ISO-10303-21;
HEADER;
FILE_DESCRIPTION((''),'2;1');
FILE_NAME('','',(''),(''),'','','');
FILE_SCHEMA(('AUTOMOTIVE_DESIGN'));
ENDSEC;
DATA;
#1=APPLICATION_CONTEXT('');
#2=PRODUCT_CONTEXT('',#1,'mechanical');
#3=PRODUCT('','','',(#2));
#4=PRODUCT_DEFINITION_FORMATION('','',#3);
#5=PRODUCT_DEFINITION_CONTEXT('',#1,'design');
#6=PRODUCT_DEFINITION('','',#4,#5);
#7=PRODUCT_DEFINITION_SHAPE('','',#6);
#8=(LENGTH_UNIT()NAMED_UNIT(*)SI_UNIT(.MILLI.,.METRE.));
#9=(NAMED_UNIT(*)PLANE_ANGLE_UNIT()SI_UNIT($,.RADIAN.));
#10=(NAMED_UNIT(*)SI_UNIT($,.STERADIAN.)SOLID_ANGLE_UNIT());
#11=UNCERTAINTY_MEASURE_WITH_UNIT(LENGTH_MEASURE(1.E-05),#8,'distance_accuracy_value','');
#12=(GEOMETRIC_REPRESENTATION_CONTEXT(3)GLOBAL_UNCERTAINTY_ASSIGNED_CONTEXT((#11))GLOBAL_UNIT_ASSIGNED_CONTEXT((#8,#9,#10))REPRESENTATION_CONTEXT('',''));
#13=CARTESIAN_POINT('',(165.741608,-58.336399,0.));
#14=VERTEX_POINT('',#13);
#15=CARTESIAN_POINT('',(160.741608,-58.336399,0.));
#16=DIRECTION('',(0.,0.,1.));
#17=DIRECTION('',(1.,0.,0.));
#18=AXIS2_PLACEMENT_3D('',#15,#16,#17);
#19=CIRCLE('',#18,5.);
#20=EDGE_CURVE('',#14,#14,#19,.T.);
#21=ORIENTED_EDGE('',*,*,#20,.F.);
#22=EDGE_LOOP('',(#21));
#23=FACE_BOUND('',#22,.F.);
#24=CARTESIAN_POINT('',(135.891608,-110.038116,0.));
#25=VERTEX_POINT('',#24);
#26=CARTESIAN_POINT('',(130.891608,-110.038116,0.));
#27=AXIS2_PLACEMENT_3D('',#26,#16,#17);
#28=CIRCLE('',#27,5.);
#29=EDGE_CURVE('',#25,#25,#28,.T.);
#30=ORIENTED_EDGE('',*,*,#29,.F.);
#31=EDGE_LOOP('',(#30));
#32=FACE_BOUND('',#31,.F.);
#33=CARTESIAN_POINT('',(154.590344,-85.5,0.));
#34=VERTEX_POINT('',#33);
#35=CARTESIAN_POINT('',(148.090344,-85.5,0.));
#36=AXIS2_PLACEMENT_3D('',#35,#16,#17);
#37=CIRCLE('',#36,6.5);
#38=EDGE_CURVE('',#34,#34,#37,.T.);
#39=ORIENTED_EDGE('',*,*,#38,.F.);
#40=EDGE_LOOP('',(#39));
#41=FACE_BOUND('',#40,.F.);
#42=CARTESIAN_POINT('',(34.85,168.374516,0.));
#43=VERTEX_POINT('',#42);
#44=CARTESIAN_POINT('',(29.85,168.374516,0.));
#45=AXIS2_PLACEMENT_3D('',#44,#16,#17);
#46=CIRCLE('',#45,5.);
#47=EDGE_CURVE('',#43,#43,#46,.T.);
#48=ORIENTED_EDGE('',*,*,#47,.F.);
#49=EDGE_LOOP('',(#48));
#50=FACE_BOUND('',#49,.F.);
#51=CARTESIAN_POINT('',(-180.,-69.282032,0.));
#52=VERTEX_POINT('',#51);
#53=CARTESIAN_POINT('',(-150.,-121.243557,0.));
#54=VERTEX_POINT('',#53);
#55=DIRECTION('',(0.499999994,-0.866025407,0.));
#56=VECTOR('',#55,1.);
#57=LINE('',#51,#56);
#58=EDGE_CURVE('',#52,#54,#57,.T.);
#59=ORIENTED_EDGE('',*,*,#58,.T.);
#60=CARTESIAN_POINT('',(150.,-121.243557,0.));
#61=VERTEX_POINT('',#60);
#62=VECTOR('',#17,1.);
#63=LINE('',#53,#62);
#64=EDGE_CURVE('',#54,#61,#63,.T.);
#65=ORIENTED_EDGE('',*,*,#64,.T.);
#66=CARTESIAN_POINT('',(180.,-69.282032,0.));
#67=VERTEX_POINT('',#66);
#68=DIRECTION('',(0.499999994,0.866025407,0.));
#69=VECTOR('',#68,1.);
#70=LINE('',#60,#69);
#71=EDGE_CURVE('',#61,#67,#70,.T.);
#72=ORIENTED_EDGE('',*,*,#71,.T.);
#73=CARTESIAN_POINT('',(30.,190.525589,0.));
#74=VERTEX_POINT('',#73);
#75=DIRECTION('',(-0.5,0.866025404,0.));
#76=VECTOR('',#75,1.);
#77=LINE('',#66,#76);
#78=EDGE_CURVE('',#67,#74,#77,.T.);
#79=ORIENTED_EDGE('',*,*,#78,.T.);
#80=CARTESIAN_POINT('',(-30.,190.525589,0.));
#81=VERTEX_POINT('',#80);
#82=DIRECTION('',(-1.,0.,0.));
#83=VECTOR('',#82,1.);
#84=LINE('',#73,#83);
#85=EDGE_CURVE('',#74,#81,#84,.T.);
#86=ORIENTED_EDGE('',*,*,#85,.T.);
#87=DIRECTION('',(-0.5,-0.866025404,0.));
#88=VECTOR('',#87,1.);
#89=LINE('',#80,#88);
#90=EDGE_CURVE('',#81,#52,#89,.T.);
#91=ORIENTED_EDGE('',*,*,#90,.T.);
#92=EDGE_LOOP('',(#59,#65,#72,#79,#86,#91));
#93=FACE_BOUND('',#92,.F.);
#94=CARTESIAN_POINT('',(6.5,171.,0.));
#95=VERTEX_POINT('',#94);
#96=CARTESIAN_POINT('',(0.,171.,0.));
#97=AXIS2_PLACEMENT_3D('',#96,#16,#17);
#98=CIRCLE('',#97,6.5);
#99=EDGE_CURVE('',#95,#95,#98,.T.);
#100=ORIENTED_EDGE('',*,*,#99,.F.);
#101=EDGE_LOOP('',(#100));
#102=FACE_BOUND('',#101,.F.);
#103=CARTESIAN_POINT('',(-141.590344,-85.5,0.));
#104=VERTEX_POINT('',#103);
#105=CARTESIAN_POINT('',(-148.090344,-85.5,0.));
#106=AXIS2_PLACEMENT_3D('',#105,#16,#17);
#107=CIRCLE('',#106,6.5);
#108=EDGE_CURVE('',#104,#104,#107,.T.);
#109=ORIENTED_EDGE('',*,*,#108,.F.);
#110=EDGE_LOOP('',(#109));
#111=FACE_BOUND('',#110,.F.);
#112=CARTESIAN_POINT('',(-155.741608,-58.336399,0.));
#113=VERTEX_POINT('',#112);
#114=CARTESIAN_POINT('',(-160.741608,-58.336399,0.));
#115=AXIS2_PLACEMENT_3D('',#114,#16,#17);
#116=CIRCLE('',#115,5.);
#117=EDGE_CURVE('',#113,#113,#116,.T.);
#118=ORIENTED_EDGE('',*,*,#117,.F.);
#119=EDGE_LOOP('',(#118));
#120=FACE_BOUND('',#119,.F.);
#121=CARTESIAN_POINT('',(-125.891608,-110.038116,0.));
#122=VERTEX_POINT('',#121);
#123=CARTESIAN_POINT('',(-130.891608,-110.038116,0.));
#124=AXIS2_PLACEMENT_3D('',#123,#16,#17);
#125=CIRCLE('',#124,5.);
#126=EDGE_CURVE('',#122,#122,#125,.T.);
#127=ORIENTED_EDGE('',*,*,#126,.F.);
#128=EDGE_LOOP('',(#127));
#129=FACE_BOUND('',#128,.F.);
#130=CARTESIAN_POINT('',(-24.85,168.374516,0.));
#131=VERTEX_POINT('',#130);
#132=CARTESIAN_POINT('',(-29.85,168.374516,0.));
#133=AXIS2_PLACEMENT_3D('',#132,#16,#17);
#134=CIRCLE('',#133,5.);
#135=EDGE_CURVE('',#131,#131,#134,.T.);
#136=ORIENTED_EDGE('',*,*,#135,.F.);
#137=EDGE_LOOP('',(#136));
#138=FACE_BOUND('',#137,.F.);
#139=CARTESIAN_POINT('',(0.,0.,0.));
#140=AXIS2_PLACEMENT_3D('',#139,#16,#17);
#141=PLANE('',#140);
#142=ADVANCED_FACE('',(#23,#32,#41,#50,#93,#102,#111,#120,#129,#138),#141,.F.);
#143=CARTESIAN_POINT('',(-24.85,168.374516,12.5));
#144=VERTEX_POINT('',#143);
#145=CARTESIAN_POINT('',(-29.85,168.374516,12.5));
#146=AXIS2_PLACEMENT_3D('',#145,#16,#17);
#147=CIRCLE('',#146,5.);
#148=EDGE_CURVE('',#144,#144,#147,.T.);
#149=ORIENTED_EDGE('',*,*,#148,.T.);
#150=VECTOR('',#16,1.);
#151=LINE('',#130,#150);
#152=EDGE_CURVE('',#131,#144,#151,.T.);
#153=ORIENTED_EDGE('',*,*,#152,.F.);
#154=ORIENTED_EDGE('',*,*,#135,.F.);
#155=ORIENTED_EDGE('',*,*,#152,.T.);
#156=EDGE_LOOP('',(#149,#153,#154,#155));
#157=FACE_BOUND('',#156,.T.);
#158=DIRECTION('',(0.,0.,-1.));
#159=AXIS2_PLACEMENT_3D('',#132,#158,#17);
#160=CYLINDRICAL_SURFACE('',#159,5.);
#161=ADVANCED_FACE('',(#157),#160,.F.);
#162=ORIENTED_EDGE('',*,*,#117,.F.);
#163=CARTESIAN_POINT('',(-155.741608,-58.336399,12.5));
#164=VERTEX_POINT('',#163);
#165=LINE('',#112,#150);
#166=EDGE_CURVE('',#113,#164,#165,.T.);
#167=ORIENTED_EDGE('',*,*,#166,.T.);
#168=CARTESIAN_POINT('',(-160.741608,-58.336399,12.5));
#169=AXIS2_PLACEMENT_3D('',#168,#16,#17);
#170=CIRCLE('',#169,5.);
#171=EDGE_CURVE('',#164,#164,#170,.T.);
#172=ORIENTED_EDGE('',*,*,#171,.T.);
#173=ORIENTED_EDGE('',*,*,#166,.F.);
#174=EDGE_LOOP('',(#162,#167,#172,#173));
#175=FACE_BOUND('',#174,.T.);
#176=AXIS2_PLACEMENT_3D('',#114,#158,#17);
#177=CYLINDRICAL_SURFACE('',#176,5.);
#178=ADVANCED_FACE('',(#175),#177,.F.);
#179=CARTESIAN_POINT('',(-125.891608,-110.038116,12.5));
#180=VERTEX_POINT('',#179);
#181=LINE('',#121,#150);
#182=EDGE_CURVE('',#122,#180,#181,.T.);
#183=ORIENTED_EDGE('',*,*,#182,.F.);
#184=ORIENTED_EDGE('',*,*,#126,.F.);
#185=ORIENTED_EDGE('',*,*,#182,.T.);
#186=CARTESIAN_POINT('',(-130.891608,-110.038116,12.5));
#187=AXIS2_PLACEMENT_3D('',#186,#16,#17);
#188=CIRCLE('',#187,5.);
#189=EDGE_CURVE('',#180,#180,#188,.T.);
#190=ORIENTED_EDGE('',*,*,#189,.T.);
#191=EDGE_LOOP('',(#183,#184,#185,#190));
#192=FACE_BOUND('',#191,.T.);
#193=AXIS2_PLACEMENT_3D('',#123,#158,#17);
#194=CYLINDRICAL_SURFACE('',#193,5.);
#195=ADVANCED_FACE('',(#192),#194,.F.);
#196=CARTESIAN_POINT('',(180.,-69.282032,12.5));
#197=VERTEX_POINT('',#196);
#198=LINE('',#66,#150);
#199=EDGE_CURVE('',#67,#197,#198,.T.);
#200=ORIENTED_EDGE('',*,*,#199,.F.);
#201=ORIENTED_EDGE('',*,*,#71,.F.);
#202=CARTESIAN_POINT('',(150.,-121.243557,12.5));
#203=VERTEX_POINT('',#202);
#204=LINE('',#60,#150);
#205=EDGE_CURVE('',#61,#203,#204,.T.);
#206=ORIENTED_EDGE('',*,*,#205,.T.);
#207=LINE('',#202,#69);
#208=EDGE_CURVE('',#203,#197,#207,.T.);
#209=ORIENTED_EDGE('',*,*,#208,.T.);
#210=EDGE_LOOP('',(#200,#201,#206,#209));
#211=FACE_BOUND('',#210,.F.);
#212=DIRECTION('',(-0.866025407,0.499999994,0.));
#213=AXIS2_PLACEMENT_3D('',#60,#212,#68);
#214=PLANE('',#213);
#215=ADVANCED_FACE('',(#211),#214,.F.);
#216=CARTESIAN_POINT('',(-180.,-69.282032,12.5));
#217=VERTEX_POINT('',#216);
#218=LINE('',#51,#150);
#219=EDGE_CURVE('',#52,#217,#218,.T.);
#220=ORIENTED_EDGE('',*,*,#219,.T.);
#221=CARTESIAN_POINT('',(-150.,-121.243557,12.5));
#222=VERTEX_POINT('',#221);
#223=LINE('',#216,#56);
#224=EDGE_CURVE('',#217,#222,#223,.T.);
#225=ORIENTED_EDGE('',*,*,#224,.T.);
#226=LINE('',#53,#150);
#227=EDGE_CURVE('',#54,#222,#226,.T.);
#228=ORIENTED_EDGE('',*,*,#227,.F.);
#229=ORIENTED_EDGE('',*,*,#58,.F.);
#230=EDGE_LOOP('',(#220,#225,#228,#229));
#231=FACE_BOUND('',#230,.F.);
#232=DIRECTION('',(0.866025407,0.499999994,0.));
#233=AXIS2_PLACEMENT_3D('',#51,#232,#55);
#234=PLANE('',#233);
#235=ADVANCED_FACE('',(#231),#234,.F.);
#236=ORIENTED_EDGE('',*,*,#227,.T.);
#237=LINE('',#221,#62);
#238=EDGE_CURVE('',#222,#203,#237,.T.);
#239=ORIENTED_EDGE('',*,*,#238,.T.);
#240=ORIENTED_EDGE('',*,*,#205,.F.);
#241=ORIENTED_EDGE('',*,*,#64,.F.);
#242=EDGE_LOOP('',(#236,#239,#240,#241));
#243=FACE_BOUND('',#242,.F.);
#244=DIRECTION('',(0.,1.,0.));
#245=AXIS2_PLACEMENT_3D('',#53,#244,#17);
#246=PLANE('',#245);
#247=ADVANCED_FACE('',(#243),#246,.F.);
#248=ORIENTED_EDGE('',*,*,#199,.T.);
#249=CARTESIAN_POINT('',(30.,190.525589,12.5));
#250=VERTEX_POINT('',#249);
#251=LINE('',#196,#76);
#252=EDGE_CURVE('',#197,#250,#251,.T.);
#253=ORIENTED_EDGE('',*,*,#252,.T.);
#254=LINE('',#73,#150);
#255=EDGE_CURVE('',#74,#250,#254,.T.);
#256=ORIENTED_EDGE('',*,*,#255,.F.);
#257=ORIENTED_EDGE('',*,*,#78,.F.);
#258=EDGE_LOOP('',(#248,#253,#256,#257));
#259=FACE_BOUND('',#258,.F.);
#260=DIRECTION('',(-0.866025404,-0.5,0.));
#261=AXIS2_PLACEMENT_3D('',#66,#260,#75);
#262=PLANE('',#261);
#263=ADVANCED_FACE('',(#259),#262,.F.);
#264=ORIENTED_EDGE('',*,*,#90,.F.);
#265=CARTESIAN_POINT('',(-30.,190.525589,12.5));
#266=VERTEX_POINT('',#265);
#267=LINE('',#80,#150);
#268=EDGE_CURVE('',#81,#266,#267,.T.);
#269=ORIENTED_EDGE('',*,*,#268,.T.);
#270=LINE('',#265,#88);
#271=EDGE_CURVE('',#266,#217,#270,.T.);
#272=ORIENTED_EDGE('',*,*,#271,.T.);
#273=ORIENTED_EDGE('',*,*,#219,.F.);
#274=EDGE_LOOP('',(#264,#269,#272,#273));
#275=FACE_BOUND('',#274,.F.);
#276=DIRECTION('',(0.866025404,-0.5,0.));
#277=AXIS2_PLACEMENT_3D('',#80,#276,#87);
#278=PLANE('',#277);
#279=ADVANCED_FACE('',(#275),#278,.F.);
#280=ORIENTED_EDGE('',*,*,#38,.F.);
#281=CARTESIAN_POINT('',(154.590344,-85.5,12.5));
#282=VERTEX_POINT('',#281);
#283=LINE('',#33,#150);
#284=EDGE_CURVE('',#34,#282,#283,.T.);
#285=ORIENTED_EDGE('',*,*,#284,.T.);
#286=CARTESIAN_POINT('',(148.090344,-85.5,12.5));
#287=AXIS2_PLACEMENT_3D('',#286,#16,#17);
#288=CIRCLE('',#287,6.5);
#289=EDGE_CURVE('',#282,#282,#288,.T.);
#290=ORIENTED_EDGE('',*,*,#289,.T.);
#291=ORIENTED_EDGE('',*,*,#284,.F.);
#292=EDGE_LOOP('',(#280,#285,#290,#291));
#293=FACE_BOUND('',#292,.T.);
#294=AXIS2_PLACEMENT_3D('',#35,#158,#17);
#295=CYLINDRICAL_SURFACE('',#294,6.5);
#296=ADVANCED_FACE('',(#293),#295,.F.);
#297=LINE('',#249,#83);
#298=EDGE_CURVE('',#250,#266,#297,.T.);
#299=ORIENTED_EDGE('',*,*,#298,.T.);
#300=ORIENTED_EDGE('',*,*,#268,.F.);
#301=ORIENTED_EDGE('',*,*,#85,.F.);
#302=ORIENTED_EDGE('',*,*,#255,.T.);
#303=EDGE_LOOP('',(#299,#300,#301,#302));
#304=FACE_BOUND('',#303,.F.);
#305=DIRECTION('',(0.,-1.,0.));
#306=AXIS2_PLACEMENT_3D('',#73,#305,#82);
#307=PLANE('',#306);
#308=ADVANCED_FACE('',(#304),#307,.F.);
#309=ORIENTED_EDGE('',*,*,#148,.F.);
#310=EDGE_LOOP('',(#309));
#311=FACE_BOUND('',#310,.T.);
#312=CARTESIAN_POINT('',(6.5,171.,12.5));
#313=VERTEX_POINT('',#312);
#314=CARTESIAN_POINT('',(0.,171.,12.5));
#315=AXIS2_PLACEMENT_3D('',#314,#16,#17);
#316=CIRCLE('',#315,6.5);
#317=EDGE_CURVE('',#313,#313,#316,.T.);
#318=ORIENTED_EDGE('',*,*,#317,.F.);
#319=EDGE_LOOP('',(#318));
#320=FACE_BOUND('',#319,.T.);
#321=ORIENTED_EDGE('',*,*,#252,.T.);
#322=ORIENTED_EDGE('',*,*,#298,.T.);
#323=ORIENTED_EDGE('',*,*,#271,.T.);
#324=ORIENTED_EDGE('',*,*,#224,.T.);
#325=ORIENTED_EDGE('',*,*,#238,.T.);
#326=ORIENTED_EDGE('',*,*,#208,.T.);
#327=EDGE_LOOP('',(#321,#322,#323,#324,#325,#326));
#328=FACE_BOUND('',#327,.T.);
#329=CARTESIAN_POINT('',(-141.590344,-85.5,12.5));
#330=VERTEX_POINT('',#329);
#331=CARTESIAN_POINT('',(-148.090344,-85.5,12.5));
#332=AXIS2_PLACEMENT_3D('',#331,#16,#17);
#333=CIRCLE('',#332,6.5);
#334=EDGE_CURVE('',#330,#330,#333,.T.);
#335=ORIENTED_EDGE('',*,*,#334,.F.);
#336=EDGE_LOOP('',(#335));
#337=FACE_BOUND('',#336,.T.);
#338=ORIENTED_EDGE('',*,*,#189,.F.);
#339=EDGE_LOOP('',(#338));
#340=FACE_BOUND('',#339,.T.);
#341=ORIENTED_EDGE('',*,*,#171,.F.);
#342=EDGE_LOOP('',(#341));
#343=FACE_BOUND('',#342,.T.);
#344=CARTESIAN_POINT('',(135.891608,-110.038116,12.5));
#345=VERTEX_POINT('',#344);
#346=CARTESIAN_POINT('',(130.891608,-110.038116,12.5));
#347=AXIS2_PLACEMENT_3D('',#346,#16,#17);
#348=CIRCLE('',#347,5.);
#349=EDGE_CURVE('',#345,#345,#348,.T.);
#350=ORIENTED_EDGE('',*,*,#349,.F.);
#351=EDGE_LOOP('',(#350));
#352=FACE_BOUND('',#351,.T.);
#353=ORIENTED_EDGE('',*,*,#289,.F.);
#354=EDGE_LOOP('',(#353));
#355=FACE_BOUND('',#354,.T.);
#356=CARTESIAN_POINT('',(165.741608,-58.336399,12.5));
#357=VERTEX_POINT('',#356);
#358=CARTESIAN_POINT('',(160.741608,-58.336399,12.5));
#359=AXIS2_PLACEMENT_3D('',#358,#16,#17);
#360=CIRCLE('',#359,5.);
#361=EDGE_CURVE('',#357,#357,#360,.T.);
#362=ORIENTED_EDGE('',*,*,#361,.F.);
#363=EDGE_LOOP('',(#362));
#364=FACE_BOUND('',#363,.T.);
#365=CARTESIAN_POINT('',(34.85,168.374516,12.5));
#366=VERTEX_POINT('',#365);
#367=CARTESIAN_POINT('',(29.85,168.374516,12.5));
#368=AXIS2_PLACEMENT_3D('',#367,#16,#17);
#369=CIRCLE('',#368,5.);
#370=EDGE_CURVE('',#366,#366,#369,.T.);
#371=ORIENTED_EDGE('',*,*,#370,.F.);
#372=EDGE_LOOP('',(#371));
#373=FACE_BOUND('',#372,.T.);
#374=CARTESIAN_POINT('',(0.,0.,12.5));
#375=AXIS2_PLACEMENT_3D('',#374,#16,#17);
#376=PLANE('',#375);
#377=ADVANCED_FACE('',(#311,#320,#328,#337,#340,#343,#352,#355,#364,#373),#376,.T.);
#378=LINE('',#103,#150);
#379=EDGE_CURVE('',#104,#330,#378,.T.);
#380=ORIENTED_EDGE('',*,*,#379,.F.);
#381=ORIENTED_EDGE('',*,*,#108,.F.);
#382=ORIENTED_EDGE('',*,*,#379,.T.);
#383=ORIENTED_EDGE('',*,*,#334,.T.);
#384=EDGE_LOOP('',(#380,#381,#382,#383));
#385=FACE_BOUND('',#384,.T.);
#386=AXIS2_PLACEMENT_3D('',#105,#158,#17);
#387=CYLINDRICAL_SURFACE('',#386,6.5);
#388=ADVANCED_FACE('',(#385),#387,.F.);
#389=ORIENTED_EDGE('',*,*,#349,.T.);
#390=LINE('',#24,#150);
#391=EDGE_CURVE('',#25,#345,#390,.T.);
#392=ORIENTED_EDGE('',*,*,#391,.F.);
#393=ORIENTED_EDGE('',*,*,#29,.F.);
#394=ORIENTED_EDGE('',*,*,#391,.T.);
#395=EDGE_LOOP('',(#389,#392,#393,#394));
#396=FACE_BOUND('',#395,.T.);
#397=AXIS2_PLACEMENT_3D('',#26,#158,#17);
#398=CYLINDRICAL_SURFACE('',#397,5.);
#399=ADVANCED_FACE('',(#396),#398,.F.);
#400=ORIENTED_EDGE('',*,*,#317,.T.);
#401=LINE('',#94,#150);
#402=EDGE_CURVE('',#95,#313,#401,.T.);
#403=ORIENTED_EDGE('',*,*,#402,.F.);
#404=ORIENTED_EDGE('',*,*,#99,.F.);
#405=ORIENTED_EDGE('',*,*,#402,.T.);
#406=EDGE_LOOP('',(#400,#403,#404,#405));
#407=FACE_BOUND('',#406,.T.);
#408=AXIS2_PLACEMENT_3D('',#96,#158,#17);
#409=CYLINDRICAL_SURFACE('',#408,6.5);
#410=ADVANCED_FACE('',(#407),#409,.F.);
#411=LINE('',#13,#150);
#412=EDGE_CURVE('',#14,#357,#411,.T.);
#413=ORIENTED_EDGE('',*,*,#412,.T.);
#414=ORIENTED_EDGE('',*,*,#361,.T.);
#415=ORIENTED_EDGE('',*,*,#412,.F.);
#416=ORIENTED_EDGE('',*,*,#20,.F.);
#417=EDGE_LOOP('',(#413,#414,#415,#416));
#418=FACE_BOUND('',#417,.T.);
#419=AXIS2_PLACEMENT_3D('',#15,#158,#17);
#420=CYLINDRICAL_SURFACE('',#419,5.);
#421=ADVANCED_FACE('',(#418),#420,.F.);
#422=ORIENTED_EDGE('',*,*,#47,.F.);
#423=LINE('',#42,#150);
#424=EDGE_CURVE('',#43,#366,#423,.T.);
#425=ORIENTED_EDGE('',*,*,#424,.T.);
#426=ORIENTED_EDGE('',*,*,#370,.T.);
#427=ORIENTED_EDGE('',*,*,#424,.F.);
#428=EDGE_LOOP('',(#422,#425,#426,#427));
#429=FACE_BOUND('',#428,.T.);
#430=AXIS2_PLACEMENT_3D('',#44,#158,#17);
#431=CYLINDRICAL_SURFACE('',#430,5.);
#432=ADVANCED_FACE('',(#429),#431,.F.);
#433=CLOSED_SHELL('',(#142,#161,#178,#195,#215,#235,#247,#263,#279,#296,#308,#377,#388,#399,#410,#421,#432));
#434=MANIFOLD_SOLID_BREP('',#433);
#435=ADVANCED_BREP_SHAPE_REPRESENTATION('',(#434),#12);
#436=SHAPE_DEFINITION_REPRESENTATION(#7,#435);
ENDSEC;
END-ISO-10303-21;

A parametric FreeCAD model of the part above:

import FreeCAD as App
import Part
import Sketcher

V = App.Vector
Q = App.Units.Quantity

doc = App.newDocument("Part")
body = doc.addObject("PartDesign::Body", "Body")

# Sketch on XY plane
sketch1 = doc.addObject("Sketcher::SketchObject", "Sketch")
body.addObject(sketch1)
sketch1.AttachmentSupport = (doc.XY_Plane, [""])
sketch1.MapMode = "FlatFace"
sketch1.addGeometry(Part.LineSegment(V(-30, 190.525589, 0), V(-180, -69.282032, 0)), False)
sketch1.addGeometry(Part.LineSegment(V(-180, -69.282032, 0), V(-150, -121.243557, 0)), False)
sketch1.addGeometry(Part.LineSegment(V(-150, -121.243557, 0), V(150, -121.243557, 0)), False)
sketch1.addGeometry(Part.LineSegment(V(150, -121.243557, 0), V(180, -69.282032, 0)), False)
sketch1.addGeometry(Part.LineSegment(V(180, -69.282032, 0), V(30, 190.525589, 0)), False)
sketch1.addGeometry(Part.LineSegment(V(30, 190.525589, 0), V(-30, 190.525589, 0)), False)
sketch1.addGeometry(Part.Circle(V(-130.891608, -110.038116, 0), V(0, 0, 1), 5), False)
sketch1.addGeometry(Part.Circle(V(-148.090344, -85.5, 0), V(0, 0, 1), 6.5), False)
sketch1.addGeometry(Part.Circle(V(-160.741608, -58.336399, 0), V(0, 0, 1), 5), False)
sketch1.addGeometry(Part.Circle(V(130.891608, -110.038116, 0), V(0, 0, 1), 5), False)
sketch1.addGeometry(Part.Circle(V(148.090344, -85.5, 0), V(0, 0, 1), 6.5), False)
sketch1.addGeometry(Part.Circle(V(160.741608, -58.336399, 0), V(0, 0, 1), 5), False)
sketch1.addGeometry(Part.Circle(V(-29.85, 168.374516, 0), V(0, 0, 1), 5), False)
sketch1.addGeometry(Part.Circle(V(0, 171, 0), V(0, 0, 1), 6.5), False)
sketch1.addGeometry(Part.Circle(V(29.85, 168.374516, 0), V(0, 0, 1), 5), False)
sketch1.addConstraint(Sketcher.Constraint("Coincident", 0, 2, 1, 1))
sketch1.addConstraint(Sketcher.Constraint("Coincident", 1, 2, 2, 1))
sketch1.addConstraint(Sketcher.Constraint("Coincident", 2, 2, 3, 1))
sketch1.addConstraint(Sketcher.Constraint("Coincident", 3, 2, 4, 1))
sketch1.addConstraint(Sketcher.Constraint("Coincident", 4, 2, 5, 1))
sketch1.addConstraint(Sketcher.Constraint("Coincident", 5, 2, 0, 1))
sketch1.addConstraint(Sketcher.Constraint("Horizontal", 2))
sketch1.addConstraint(Sketcher.Constraint("Horizontal", 5))
sketch1.addConstraint(Sketcher.Constraint("Equal", 6, 8))
sketch1.addConstraint(Sketcher.Constraint("Equal", 8, 9))
sketch1.addConstraint(Sketcher.Constraint("Equal", 7, 10))
sketch1.addConstraint(Sketcher.Constraint("Equal", 9, 11))
sketch1.addConstraint(Sketcher.Constraint("Equal", 11, 12))
sketch1.addConstraint(Sketcher.Constraint("Equal", 10, 13))
sketch1.addConstraint(Sketcher.Constraint("Equal", 12, 14))
sketch1.addConstraint(Sketcher.Constraint("Symmetric", 6, 3, 9, 3, -2))
sketch1.addConstraint(Sketcher.Constraint("Symmetric", 7, 3, 10, 3, -2))
sketch1.addConstraint(Sketcher.Constraint("Symmetric", 8, 3, 11, 3, -2))
sketch1.addConstraint(Sketcher.Constraint("Symmetric", 12, 3, 14, 3, -2))
sketch1.addConstraint(Sketcher.Constraint("Symmetric", 0, 2, 3, 2, -2))
sketch1.addConstraint(Sketcher.Constraint("PointOnObject", 13, 3, -2))
sketch1.addConstraint(Sketcher.Constraint("Parallel", 0, 3))
sketch1.addConstraint(Sketcher.Constraint("Parallel", 1, 4))
sketch1.addConstraint(Sketcher.Constraint("Equal", 1, 3))
sketch1.addConstraint(Sketcher.Constraint("Diameter", 6, 10.0))
sketch1.addConstraint(Sketcher.Constraint("Diameter", 7, 13.0))
sketch1.addConstraint(Sketcher.Constraint("DistanceX", 2, 1, 2, 2, 300.0))
sketch1.addConstraint(Sketcher.Constraint("DistanceX", 5, 2, 5, 1, 60.0))
sketch1.addConstraint(Sketcher.Constraint("Angle", 0, Q("-120 deg")))
sketch1.addConstraint(Sketcher.Constraint("Distance", 0, 300.0))
sketch1.addConstraint(Sketcher.Constraint("DistanceY", -1, 1, 13, 3, 171.0))
sketch1.addConstraint(Sketcher.Constraint("DistanceY", 7, 3, -1, 1, 85.5))
sketch1.addConstraint(Sketcher.Constraint("DistanceX", 12, 3, 14, 3, 59.7))
sketch1.addConstraint(Sketcher.Constraint("DistanceX", 8, 3, 6, 3, 29.85))
sketch1.addConstraint(Sketcher.Constraint("DistanceY", 8, 3, -1, 1, 58.336399))
sketch1.addConstraint(Sketcher.Constraint("DistanceX", 6, 3, -1, 1, 130.891608))
sketch1.addConstraint(Sketcher.Constraint("DistanceY", 0, 2, -1, 1, 69.282032))
sketch1.addConstraint(Sketcher.Constraint("DistanceX", 7, 3, 9, 3, 278.981952))
sketch1.addConstraint(Sketcher.Constraint("DistanceY", 1, 2, 6, 3, 11.205441))
sketch1.addConstraint(Sketcher.Constraint("DistanceY", -1, 1, 12, 3, 168.374516))
pad1 = doc.addObject("PartDesign::Pad", "Pad")
body.addObject(pad1)
pad1.Profile = sketch1
pad1.Length = 12.5

doc.recompute()
